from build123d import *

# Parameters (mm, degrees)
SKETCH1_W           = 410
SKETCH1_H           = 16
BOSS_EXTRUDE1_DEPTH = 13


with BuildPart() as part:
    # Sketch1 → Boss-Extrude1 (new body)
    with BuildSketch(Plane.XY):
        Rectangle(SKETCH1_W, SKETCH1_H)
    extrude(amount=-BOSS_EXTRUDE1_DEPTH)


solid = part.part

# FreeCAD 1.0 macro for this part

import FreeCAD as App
import Part
import Sketcher

V = App.Vector
Q = App.Units.Quantity


def add_polygon(sketch, points):
    """Adds a closed chain of lines whose ends are joined by coincident constraints."""
    first, n = sketch.GeometryCount, len(points)
    for a, b in zip(points, points[1:] + points[:1]):
        sketch.addGeometry(Part.LineSegment(App.Vector(*a, 0), App.Vector(*b, 0)), False)
    for i in range(n):
        sketch.addConstraint(Sketcher.Constraint("Coincident", first + i, 2, first + (i + 1) % n, 1))

doc = App.newDocument("Part")
body = doc.addObject("PartDesign::Body", "Body")

# Sketch on XY plane
sketch1 = doc.addObject("Sketcher::SketchObject", "Sketch")
body.addObject(sketch1)
sketch1.AttachmentSupport = (doc.XY_Plane, [""])
sketch1.MapMode = "FlatFace"
add_polygon(sketch1, [(-205, 8), (-205, -8), (205, -8), (205, 8)])  # lines 0-3
sketch1.addConstraint([
    Sketcher.Constraint("Vertical", 0),
    Sketcher.Constraint("Horizontal", 1),
    Sketcher.Constraint("Vertical", 2),
    Sketcher.Constraint("Horizontal", 3),
    Sketcher.Constraint("Symmetric", 0, 2, 2, 2, -1, 1),
    Sketcher.Constraint("DistanceX", 1, 1, 1, 2, Q("410 mm")),
    Sketcher.Constraint("DistanceY", 0, 2, 0, 1, Q("16 mm")),
])
pad1 = doc.addObject("PartDesign::Pad", "Pad")
body.addObject(pad1)
pad1.Profile = sketch1
pad1.Length = 13
pad1.Reversed = True

doc.recompute()
